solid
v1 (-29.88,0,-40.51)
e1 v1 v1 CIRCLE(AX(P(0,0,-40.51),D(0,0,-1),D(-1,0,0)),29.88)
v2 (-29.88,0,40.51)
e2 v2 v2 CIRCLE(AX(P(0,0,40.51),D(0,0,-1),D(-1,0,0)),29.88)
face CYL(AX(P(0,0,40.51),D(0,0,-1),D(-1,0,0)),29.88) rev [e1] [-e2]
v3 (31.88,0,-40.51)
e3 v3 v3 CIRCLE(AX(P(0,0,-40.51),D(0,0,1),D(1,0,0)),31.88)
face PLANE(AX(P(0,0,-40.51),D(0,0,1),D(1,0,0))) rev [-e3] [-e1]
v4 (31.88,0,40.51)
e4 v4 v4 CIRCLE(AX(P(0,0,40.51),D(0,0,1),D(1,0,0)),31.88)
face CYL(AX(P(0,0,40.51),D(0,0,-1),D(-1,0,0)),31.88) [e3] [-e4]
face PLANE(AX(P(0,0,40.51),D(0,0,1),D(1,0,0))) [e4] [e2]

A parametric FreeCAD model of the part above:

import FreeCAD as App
import Part
import Sketcher

V = App.Vector

doc = App.newDocument("Part")
body = doc.addObject("PartDesign::Body", "Body")

# Sketch on XY plane
sketch1 = doc.addObject("Sketcher::SketchObject", "Sketch")
body.addObject(sketch1)
sketch1.AttachmentSupport = (doc.XY_Plane, [""])
sketch1.MapMode = "FlatFace"
sketch1.addGeometry(Part.Circle(V(0, 0, 0), V(0, 0, 1), 32), False)
sketch1.addConstraint(Sketcher.Constraint("Coincident", 0, 3, -1, 1))
sketch1.addConstraint(Sketcher.Constraint("Diameter", 0, 63.76))
pad1 = doc.addObject("PartDesign::Pad", "Pad")
body.addObject(pad1)
pad1.Profile = sketch1
pad1.Length = 81.02
pad1.Midplane = True

# Sketch on XY plane
sketch2 = doc.addObject("Sketcher::SketchObject", "Sketch001")
body.addObject(sketch2)
sketch2.AttachmentSupport = (doc.XY_Plane, [""])
sketch2.MapMode = "FlatFace"
sketch2.AttachmentOffset = App.Placement(V(0, 0, -40.51), App.Rotation())
sketch2.addGeometry(Part.Circle(V(0, 0, 0), V(0, 0, 1), 30), False)
sketch2.addConstraint(Sketcher.Constraint("Coincident", 0, 3, -1, 1))
sketch2.addConstraint(Sketcher.Constraint("Diameter", 0, 59.76))
pocket1 = doc.addObject("PartDesign::Pocket", "Pocket")
body.addObject(pocket1)
pocket1.Profile = sketch2
pocket1.Length = 81.02
pocket1.Reversed = True

doc.recompute()
